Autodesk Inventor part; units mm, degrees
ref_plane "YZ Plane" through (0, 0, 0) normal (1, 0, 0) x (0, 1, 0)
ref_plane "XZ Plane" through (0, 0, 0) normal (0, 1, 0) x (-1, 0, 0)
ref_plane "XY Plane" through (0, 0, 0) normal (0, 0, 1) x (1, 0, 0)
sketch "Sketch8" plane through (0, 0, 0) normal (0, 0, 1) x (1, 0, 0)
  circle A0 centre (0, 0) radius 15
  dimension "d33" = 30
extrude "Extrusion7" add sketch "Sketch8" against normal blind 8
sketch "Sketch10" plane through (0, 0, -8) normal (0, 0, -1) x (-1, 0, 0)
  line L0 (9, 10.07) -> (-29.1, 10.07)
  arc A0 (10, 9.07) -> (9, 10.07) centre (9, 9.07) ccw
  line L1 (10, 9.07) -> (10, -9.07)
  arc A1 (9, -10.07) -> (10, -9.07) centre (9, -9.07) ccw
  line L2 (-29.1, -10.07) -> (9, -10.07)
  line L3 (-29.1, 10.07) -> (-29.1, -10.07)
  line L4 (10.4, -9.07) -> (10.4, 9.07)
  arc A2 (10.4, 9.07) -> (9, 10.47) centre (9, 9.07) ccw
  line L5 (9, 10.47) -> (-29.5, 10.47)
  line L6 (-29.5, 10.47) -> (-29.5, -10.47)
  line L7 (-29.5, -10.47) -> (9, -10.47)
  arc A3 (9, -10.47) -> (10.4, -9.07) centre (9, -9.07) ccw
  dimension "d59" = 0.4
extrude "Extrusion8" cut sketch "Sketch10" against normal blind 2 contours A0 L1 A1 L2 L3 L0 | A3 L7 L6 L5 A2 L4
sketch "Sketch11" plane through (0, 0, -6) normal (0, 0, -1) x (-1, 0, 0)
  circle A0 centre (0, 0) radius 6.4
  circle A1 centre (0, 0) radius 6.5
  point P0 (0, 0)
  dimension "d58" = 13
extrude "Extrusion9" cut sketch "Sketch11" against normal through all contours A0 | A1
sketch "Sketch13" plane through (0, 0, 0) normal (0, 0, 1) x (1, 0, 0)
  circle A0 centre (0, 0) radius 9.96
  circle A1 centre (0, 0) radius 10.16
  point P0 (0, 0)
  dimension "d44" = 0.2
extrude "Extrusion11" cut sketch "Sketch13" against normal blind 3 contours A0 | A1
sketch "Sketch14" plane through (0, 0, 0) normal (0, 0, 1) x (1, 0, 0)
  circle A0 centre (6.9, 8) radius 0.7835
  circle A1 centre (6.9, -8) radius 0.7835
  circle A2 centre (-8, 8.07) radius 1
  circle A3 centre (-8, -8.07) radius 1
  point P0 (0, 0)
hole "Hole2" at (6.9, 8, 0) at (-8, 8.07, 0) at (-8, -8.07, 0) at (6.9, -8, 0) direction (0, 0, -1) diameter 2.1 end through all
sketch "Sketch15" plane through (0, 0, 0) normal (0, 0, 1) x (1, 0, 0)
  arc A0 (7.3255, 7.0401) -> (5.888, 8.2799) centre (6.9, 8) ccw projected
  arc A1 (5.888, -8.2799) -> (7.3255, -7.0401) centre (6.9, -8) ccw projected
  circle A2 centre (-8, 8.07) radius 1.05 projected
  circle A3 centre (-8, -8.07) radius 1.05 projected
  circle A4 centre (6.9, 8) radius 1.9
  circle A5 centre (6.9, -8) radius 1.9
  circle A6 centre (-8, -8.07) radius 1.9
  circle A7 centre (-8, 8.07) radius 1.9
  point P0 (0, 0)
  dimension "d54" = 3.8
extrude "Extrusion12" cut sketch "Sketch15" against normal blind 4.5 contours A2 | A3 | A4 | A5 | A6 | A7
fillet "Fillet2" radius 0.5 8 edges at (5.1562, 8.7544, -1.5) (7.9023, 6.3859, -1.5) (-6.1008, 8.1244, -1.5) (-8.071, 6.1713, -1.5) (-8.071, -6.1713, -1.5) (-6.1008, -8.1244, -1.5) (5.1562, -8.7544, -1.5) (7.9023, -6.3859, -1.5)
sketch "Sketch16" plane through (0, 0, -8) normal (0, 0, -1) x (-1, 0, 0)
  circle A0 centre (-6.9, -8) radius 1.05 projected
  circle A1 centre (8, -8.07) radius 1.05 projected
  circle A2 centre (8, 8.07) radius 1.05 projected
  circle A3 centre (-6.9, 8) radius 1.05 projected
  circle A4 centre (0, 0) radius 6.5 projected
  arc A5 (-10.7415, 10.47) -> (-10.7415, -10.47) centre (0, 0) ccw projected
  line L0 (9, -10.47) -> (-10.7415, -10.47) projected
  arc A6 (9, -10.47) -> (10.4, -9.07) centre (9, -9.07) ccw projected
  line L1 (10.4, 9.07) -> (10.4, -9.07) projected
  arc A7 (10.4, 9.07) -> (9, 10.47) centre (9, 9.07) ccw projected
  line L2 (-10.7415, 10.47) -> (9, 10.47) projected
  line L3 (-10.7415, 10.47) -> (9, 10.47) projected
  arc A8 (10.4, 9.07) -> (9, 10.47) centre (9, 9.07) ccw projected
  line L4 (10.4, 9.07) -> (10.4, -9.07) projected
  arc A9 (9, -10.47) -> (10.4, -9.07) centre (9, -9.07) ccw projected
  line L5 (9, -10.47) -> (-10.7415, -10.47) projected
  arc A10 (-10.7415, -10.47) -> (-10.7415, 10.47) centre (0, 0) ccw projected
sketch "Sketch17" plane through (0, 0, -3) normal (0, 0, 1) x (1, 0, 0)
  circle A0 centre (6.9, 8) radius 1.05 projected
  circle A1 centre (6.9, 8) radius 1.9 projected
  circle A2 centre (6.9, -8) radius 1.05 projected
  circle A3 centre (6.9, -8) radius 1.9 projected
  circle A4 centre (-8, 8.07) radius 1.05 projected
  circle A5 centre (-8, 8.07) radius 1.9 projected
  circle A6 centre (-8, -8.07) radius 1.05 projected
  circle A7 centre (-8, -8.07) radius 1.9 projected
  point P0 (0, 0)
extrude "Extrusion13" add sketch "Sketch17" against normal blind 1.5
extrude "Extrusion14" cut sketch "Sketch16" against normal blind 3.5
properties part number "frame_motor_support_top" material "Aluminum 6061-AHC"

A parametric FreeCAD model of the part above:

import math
import FreeCAD as App
import Part
import Sketcher

V = App.Vector
Q = App.Units.Quantity


def edges_at(feature, points):
    """Names of the edges that pass closest to the given points."""
    edges = feature.Shape.Edges
    near = lambda p: min(range(len(edges)), key=lambda i: edges[i].distToShape(Part.Vertex(*p))[0])
    return sorted({f"Edge{near(p) + 1}" for p in points})

doc = App.newDocument("Part")
body = doc.addObject("PartDesign::Body", "Body")

# Sketch on XY plane
sketch1 = body.newObject("Sketcher::SketchObject", "Sketch")
sketch1.AttachmentSupport = (doc.getObject("XY_Plane"), [""])
sketch1.MapMode = "FlatFace"
sketch1.addGeometry(Part.Circle(V(0, 0, 0), V(0, 0, 1), 15), False)
sketch1.addConstraint([
    Sketcher.Constraint("Coincident", 0, 3, -1, 1),
    Sketcher.Constraint("Diameter", 0, Q("30 mm")),
])
pad1 = body.newObject("PartDesign::Pad", "Pad")
pad1.Profile = sketch1
pad1.Length = 8
pad1.Reversed = True

# Sketch on XY plane
sketch2 = body.newObject("Sketcher::SketchObject", "Sketch001")
sketch2.AttachmentSupport = (doc.getObject("XY_Plane"), [""])
sketch2.MapMode = "FlatFace"
sketch2.AttachmentOffset = App.Placement(V(0, 0, -8), App.Rotation())
sketch2.addGeometry([
    Part.ArcOfCircle(Part.Circle(V(-9, -9.07, 0), V(0, 0, 1), 1.4), math.radians(180), math.radians(270)),  # 0
    Part.LineSegment(V(-10.4, -9.07, 0), V(-10.4, 9.07, 0)),  # 1
    Part.ArcOfCircle(Part.Circle(V(-9, 9.07, 0), V(0, 0, 1), 1.4), math.radians(90), math.radians(180)),  # 2
    Part.LineSegment(V(-9, 10.47, 0), V(29.5, 10.47, 0)),  # 3
    Part.LineSegment(V(29.5, 10.47, 0), V(29.5, -10.47, 0)),  # 4
    Part.LineSegment(V(29.5, -10.47, 0), V(-9, -10.47, 0)),  # 5
], False)
sketch2.addConstraint([
    Sketcher.Constraint("Tangent", 0, 1, 1, 1),
    Sketcher.Constraint("Tangent", 1, 2, 2, 2),
    Sketcher.Constraint("Tangent", 2, 1, 3, 1),
    Sketcher.Constraint("Coincident", 3, 2, 4, 1),
    Sketcher.Constraint("Coincident", 4, 2, 5, 1),
    Sketcher.Constraint("Tangent", 5, 2, 0, 2),
    Sketcher.Constraint("Vertical", 1),
    Sketcher.Constraint("Horizontal", 3),
    Sketcher.Constraint("Vertical", 4),
    Sketcher.Constraint("Horizontal", 5),
    Sketcher.Constraint("Equal", 0, 2),
    Sketcher.Constraint("Radius", 0, Q("1.4 mm")),
    Sketcher.Constraint("DistanceX", 3, 1, 3, 2, Q("38.5 mm")),
    Sketcher.Constraint("DistanceX", 0, 3, -1, 1, Q("9 mm")),
    Sketcher.Constraint("DistanceY", 1, 1, 1, 2, Q("18.14 mm")),
    Sketcher.Constraint("DistanceY", 0, 3, -1, 1, Q("9.07 mm")),
])
pocket1 = body.newObject("PartDesign::Pocket", "Pocket")
pocket1.Profile = sketch2
pocket1.Length = 2
pocket1.Reversed = True

# Sketch on XY plane
sketch3 = body.newObject("Sketcher::SketchObject", "Sketch002")
sketch3.AttachmentSupport = (doc.getObject("XY_Plane"), [""])
sketch3.MapMode = "FlatFace"
sketch3.AttachmentOffset = App.Placement(V(0, 0, -6), App.Rotation())
sketch3.addGeometry(Part.Circle(V(0, 0, 0), V(0, 0, 1), 6.5), False)
sketch3.addConstraint([
    Sketcher.Constraint("Coincident", 0, 3, -1, 1),
    Sketcher.Constraint("Diameter", 0, Q("13 mm")),
])
pocket2 = body.newObject("PartDesign::Pocket", "Pocket001")
pocket2.Profile = sketch3
pocket2.Type = "ThroughAll"
pocket2.Reversed = True

# Sketch on XY plane
sketch4 = body.newObject("Sketcher::SketchObject", "Sketch003")
sketch4.AttachmentSupport = (doc.getObject("XY_Plane"), [""])
sketch4.MapMode = "FlatFace"
sketch4.addGeometry(Part.Circle(V(0, 0, 0), V(0, 0, 1), 10.16), False)
sketch4.addConstraint([
    Sketcher.Constraint("Coincident", 0, 3, -1, 1),
    Sketcher.Constraint("Diameter", 0, Q("20.32 mm")),
])
pocket3 = body.newObject("PartDesign::Pocket", "Pocket002")
pocket3.Profile = sketch4
pocket3.Length = 3

# Sketch on XY plane
sketch5 = body.newObject("Sketcher::SketchObject", "Sketch004")
sketch5.AttachmentSupport = (doc.getObject("XY_Plane"), [""])
sketch5.MapMode = "FlatFace"
sketch5.addGeometry([
    Part.Circle(V(6.9, 8, 0), V(0, 0, 1), 1.05),
    Part.Circle(V(-8, 8.07, 0), V(0, 0, 1), 1.05),
    Part.Circle(V(-8, -8.07, 0), V(0, 0, 1), 1.05),
    Part.Circle(V(6.9, -8, 0), V(0, 0, 1), 1.05),
], False)
sketch5.addConstraint([
    Sketcher.Constraint("Equal", 0, 1),
    Sketcher.Constraint("Equal", 1, 2),
    Sketcher.Constraint("Equal", 2, 3),
    Sketcher.Constraint("Symmetric", 1, 3, 2, 3, -1),
    Sketcher.Constraint("Symmetric", 0, 3, 3, 3, -1),
    Sketcher.Constraint("Diameter", 0, Q("2.1 mm")),
    Sketcher.Constraint("DistanceY", -1, 1, 0, 3, Q("8 mm")),
    Sketcher.Constraint("DistanceX", 1, 3, -1, 1, Q("8 mm")),
    Sketcher.Constraint("DistanceX", -1, 1, 0, 3, Q("6.9 mm")),
    Sketcher.Constraint("DistanceY", -1, 1, 1, 3, Q("8.07 mm")),
])
doc.recompute()
hole = body.newObject("PartDesign::Hole", "Hole")
hole.Profile = sketch5
hole.ThreadType = "None"
hole.Diameter = 2.1
hole.DepthType = "ThroughAll"

# Sketch on XY plane
sketch6 = body.newObject("Sketcher::SketchObject", "Sketch005")
sketch6.AttachmentSupport = (doc.getObject("XY_Plane"), [""])
sketch6.MapMode = "FlatFace"
sketch6.addGeometry([
    Part.Circle(V(-8, 8.07, 0), V(0, 0, 1), 1.9),
    Part.Circle(V(-8, -8.07, 0), V(0, 0, 1), 1.9),
    Part.Circle(V(6.9, 8, 0), V(0, 0, 1), 1.9),
    Part.Circle(V(6.9, -8, 0), V(0, 0, 1), 1.9),
], False)
sketch6.addConstraint([
    Sketcher.Constraint("Equal", 0, 1),
    Sketcher.Constraint("Equal", 1, 2),
    Sketcher.Constraint("Equal", 2, 3),
    Sketcher.Constraint("Symmetric", 0, 3, 1, 3, -1),
    Sketcher.Constraint("Symmetric", 2, 3, 3, 3, -1),
    Sketcher.Constraint("Diameter", 0, Q("3.8 mm")),
    Sketcher.Constraint("DistanceX", 0, 3, -1, 1, Q("8 mm")),
    Sketcher.Constraint("DistanceY", -1, 1, 2, 3, Q("8 mm")),
    Sketcher.Constraint("DistanceX", -1, 1, 2, 3, Q("6.9 mm")),
    Sketcher.Constraint("DistanceY", -1, 1, 0, 3, Q("8.07 mm")),
])
pocket4 = body.newObject("PartDesign::Pocket", "Pocket003")
pocket4.Profile = sketch6
pocket4.Length = 4.5
doc.recompute()

fillet = body.newObject("PartDesign::Fillet", "Fillet")
fillet.Base = (pocket4, edges_at(pocket4, [
    (5.156, 8.754, -1.5),
    (7.902, 6.386, -1.5),
    (-6.101, 8.124, -1.5),
    (-8.071, 6.171, -1.5),
    (-8.071, -6.171, -1.5),
    (-6.101, -8.124, -1.5),
    (5.156, -8.754, -1.5),
    (7.902, -6.386, -1.5),
]))
fillet.Radius = 0.5

# Sketch on XY plane
sketch7 = body.newObject("Sketcher::SketchObject", "Sketch006")
sketch7.AttachmentSupport = (doc.getObject("XY_Plane"), [""])
sketch7.MapMode = "FlatFace"
sketch7.AttachmentOffset = App.Placement(V(0, 0, -3), App.Rotation())
sketch7.addGeometry([
    Part.Circle(V(6.9, 8, 0), V(0, 0, 1), 1.9),  # 0
    Part.Circle(V(6.9, 8, 0), V(0, 0, 1), 1.05),  # 1
    Part.Circle(V(6.9, -8, 0), V(0, 0, 1), 1.9),  # 2
    Part.Circle(V(6.9, -8, 0), V(0, 0, 1), 1.05),  # 3
    Part.Circle(V(-8, 8.07, 0), V(0, 0, 1), 1.9),  # 4
    Part.Circle(V(-8, 8.07, 0), V(0, 0, 1), 1.05),  # 5
    Part.Circle(V(-8, -8.07, 0), V(0, 0, 1), 1.9),  # 6
    Part.Circle(V(-8, -8.07, 0), V(0, 0, 1), 1.05),  # 7
], False)
sketch7.addConstraint([
    Sketcher.Constraint("Coincident", 1, 3, 0, 3),
    Sketcher.Constraint("Coincident", 3, 3, 2, 3),
    Sketcher.Constraint("Coincident", 5, 3, 4, 3),
    Sketcher.Constraint("Coincident", 7, 3, 6, 3),
    Sketcher.Constraint("Equal", 0, 2),
    Sketcher.Constraint("Equal", 1, 3),
    Sketcher.Constraint("Equal", 2, 4),
    Sketcher.Constraint("Equal", 3, 5),
    Sketcher.Constraint("Equal", 4, 6),
    Sketcher.Constraint("Equal", 5, 7),
    Sketcher.Constraint("Symmetric", 0, 3, 2, 3, -1),
    Sketcher.Constraint("Symmetric", 4, 3, 6, 3, -1),
    Sketcher.Constraint("Diameter", 0, Q("3.8 mm")),
    Sketcher.Constraint("Diameter", 1, Q("2.1 mm")),
    Sketcher.Constraint("DistanceY", -1, 1, 0, 3, Q("8 mm")),
    Sketcher.Constraint("DistanceX", 4, 3, -1, 1, Q("8 mm")),
    Sketcher.Constraint("DistanceX", -1, 1, 0, 3, Q("6.9 mm")),
    Sketcher.Constraint("DistanceY", -1, 1, 4, 3, Q("8.07 mm")),
])
pad2 = body.newObject("PartDesign::Pad", "Pad001")
pad2.Profile = sketch7
pad2.Length = 1.5
pad2.Reversed = True

# Sketch on XY plane
sketch8 = body.newObject("Sketcher::SketchObject", "Sketch007")
sketch8.AttachmentSupport = (doc.getObject("XY_Plane"), [""])
sketch8.MapMode = "FlatFace"
sketch8.AttachmentOffset = App.Placement(V(0, 0, -8), App.Rotation())
sketch8.addGeometry([
    Part.Circle(V(0, 0, 0), V(0, 0, 1), 15.000024),  # 0
    Part.Circle(V(6.9, -8, 0), V(0, 0, 1), 1.05),  # 1
    Part.Circle(V(-8, -8.07, 0), V(0, 0, 1), 1.05),  # 2
    Part.Circle(V(6.9, 8, 0), V(0, 0, 1), 1.05),  # 3
    Part.Circle(V(0, 0, 0), V(0, 0, 1), 6.5),  # 4
    Part.Circle(V(-8, 8.07, 0), V(0, 0, 1), 1.05),  # 5
], False)
sketch8.addConstraint([
    Sketcher.Constraint("Coincident", 0, 3, -1, 1),
    Sketcher.Constraint("Coincident", 4, 3, -1, 1),
    Sketcher.Constraint("Equal", 1, 2),
    Sketcher.Constraint("Equal", 2, 3),
    Sketcher.Constraint("Equal", 3, 5),
    Sketcher.Constraint("Symmetric", 1, 3, 3, 3, -1),
    Sketcher.Constraint("Symmetric", 2, 3, 5, 3, -1),
    Sketcher.Constraint("Diameter", 0, Q("30 mm")),
    Sketcher.Constraint("Diameter", 4, Q("13 mm")),
    Sketcher.Constraint("Diameter", 1, Q("2.1 mm")),
    Sketcher.Constraint("DistanceY", 1, 3, -1, 1, Q("8 mm")),
    Sketcher.Constraint("DistanceX", 2, 3, -1, 1, Q("8 mm")),
    Sketcher.Constraint("DistanceX", -1, 1, 1, 3, Q("6.9 mm")),
    Sketcher.Constraint("DistanceY", 2, 3, -1, 1, Q("8.07 mm")),
])
pocket5 = body.newObject("PartDesign::Pocket", "Pocket004")
pocket5.Profile = sketch8
pocket5.Length = 3.5
pocket5.Reversed = True

doc.recompute()
